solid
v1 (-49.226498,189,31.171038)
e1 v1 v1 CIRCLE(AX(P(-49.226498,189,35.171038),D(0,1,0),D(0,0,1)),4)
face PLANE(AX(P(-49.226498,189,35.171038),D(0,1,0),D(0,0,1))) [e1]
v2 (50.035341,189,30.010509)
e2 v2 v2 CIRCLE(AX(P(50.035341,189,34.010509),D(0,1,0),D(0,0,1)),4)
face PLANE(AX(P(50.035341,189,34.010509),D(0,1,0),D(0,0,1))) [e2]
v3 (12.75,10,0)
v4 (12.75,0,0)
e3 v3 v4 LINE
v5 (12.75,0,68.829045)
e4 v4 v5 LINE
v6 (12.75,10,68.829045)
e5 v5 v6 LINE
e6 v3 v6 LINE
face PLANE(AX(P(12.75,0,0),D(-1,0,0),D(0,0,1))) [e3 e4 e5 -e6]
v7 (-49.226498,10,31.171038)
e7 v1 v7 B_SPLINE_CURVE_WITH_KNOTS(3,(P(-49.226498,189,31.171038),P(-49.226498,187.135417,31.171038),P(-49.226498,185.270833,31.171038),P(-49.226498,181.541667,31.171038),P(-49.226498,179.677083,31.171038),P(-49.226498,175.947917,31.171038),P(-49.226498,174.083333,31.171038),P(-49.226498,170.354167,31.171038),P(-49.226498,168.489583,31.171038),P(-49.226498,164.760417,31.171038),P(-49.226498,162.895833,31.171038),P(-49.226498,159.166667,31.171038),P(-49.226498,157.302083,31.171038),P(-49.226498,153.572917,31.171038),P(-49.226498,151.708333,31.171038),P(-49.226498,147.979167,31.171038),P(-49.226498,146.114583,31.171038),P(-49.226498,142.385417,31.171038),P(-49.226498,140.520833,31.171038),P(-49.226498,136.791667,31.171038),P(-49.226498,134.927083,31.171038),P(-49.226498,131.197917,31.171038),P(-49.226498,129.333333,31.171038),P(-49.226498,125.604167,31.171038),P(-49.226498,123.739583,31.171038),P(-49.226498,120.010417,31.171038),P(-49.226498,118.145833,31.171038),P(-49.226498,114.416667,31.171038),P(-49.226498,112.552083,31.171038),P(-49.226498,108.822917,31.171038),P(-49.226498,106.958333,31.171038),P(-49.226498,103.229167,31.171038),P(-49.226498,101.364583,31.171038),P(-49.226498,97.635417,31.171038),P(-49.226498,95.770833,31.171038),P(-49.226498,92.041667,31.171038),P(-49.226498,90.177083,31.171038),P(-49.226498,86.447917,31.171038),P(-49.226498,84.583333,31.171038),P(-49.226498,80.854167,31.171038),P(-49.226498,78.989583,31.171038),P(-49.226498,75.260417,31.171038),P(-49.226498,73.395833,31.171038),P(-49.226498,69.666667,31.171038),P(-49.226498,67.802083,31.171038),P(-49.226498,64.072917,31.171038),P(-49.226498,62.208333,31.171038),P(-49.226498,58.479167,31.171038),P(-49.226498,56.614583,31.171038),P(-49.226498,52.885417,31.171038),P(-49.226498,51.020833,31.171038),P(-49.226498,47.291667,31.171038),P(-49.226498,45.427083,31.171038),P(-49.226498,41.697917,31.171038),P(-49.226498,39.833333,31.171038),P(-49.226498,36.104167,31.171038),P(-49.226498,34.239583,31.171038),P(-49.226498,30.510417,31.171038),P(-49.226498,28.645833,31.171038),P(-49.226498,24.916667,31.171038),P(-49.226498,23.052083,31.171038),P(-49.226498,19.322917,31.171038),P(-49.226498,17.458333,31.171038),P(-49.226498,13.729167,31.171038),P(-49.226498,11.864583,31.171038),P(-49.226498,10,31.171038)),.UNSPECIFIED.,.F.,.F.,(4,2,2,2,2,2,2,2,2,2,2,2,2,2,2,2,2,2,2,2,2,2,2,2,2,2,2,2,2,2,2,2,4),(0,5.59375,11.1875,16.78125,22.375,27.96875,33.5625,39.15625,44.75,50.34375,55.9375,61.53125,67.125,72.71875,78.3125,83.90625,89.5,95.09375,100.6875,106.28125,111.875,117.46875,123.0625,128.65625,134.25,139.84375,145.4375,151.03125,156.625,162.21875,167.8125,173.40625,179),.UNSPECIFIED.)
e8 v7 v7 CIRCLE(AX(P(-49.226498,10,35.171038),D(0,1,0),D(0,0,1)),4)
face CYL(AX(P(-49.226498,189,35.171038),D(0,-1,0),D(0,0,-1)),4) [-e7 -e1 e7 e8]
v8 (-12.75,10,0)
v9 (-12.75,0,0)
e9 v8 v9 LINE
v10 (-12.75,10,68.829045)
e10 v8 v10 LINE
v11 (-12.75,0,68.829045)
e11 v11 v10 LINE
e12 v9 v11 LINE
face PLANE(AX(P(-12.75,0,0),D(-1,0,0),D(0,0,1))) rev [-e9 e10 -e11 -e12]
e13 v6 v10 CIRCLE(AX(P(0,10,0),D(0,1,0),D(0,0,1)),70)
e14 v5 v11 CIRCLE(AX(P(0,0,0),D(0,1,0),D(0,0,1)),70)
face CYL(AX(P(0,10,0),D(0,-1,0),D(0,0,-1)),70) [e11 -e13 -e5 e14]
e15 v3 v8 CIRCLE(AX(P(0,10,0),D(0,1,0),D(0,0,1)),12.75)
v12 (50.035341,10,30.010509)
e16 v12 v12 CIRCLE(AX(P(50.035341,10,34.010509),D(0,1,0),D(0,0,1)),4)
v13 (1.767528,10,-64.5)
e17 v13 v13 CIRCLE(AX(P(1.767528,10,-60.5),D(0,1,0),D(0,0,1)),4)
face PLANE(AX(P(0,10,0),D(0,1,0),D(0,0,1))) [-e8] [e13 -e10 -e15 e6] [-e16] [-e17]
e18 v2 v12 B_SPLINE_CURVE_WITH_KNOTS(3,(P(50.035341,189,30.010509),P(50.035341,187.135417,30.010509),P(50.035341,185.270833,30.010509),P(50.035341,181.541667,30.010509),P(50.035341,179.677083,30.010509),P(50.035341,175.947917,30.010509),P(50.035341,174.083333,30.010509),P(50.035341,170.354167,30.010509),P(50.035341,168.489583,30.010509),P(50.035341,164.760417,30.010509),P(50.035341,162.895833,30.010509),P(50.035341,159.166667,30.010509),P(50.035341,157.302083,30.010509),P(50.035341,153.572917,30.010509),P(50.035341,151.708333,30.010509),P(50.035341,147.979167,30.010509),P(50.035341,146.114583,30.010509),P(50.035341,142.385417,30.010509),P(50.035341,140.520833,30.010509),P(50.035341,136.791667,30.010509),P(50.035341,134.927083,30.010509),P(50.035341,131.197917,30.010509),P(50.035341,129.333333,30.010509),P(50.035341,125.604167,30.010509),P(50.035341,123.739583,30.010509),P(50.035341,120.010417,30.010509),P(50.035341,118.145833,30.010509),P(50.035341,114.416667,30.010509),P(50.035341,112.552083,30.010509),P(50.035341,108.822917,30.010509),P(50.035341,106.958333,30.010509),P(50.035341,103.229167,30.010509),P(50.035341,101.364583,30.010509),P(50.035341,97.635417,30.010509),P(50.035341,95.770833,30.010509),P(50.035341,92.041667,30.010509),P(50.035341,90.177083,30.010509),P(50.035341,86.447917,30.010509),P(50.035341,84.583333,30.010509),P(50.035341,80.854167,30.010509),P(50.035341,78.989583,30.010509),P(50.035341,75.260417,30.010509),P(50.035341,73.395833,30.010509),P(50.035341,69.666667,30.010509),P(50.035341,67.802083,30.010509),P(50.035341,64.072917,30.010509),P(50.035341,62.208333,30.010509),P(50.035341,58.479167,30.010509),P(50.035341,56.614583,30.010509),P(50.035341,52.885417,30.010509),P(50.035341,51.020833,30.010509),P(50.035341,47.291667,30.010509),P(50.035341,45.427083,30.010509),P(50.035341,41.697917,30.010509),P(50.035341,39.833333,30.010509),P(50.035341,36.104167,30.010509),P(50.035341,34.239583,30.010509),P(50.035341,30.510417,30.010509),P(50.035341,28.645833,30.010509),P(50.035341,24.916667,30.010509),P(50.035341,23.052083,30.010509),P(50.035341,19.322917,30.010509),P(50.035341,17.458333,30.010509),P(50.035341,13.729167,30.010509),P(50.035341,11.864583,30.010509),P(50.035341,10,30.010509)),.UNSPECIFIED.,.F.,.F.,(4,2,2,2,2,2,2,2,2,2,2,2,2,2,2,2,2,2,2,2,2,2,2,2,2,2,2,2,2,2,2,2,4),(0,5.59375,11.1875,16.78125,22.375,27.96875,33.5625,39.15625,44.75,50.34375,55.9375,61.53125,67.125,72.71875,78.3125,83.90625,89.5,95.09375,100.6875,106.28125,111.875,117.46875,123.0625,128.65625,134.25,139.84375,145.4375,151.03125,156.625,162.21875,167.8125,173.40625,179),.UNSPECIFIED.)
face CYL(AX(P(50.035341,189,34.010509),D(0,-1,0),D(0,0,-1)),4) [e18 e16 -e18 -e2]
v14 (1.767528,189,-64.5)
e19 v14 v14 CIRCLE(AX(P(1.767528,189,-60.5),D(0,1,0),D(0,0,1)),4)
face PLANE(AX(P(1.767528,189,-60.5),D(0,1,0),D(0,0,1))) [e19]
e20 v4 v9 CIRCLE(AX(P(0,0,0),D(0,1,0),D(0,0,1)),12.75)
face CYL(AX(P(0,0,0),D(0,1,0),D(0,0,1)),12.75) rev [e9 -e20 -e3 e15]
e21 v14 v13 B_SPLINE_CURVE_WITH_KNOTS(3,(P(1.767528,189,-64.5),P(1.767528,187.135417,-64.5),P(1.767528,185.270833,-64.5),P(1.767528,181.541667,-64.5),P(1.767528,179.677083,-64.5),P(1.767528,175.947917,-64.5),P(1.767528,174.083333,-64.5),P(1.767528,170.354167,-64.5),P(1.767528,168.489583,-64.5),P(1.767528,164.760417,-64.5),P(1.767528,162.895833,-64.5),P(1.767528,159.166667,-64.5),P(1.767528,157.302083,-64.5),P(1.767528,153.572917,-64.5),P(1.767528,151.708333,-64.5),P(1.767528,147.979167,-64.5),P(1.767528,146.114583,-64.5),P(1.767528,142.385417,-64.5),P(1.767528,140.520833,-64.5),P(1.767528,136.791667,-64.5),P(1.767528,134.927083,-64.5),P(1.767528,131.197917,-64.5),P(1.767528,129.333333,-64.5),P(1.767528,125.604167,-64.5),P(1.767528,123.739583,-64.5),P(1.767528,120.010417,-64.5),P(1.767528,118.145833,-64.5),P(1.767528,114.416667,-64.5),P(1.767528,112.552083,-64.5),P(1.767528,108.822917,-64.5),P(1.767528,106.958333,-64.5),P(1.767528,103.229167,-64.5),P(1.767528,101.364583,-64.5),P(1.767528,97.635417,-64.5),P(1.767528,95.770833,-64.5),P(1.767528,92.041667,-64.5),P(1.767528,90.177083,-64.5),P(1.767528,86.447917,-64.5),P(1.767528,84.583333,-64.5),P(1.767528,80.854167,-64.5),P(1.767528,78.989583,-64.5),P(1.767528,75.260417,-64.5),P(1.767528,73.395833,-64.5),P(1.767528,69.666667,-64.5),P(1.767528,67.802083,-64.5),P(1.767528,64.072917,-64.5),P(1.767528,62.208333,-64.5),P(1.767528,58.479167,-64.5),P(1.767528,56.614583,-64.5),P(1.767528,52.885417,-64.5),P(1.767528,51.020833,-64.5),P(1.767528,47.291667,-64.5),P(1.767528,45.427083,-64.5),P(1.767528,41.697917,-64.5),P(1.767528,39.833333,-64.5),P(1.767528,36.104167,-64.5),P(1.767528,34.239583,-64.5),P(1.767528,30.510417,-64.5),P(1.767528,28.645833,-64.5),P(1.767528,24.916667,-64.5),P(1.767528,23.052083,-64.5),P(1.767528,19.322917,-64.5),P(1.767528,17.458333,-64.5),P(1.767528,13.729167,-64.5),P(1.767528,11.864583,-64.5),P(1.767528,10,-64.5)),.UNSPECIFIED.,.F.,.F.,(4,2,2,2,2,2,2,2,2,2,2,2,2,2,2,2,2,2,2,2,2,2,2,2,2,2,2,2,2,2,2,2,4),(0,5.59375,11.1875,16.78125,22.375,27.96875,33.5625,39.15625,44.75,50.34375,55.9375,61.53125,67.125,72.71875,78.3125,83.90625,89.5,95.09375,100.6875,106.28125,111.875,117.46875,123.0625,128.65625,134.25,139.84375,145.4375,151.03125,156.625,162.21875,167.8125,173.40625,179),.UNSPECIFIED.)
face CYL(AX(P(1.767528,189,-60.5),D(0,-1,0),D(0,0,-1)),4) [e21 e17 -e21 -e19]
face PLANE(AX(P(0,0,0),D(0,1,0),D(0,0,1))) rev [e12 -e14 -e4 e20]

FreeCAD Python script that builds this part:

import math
import FreeCAD as App
import Part
import Sketcher

V = App.Vector

doc = App.newDocument("Part")
body = doc.addObject("PartDesign::Body", "Body")

# Sketch on XZ plane
sketch1 = doc.addObject("Sketcher::SketchObject", "Sketch")
body.addObject(sketch1)
sketch1.AttachmentSupport = (doc.XZ_Plane, [""])
sketch1.MapMode = "FlatFace"
sketch1.addGeometry(Part.Circle(V(0, 0, 0), V(0, 0, 1), 70), False)
sketch1.addConstraint([
    Sketcher.Constraint("Coincident", 0, 3, -1, 1),
    Sketcher.Constraint("Diameter", 0, 140.0),
])
pad1 = doc.addObject("PartDesign::Pad", "Pad")
body.addObject(pad1)
pad1.Profile = sketch1
pad1.Length = 10
pad1.Reversed = True

# Sketch on XZ plane
sketch2 = doc.addObject("Sketcher::SketchObject", "Sketch001")
body.addObject(sketch2)
sketch2.AttachmentSupport = (doc.XZ_Plane, [""])
sketch2.MapMode = "FlatFace"
sketch2.AttachmentOffset = App.Placement(V(0, 0, -10), App.Rotation())
sketch2.addGeometry([
    Part.Circle(V(-49.226498, 35.171038, 0), V(0, 0, 1), 4),
    Part.Circle(V(1.767528, -60.5, 0), V(0, 0, 1), 4),
    Part.Circle(V(50.035341, 34.010509, 0), V(0, 0, 1), 4),
], False)
sketch2.addConstraint([
    Sketcher.Constraint("Equal", 0, 1),
    Sketcher.Constraint("Equal", 1, 2),
    Sketcher.Constraint("Diameter", 0, 8.0),
    Sketcher.Constraint("DistanceY", 1, 3, -1, 1, 60.5),
    Sketcher.Constraint("DistanceX", 0, 3, -1, 1, 49.226498),
    Sketcher.Constraint("DistanceX", -1, 1, 1, 3, 1.767528),
    Sketcher.Constraint("DistanceX", -1, 1, 2, 3, 50.035341),
    Sketcher.Constraint("DistanceY", -1, 1, 2, 3, 34.010509),
    Sketcher.Constraint("DistanceY", 2, 3, 0, 3, 1.160529),
])
pad2 = doc.addObject("PartDesign::Pad", "Pad001")
body.addObject(pad2)
pad2.Profile = sketch2
pad2.Length = 179
pad2.Reversed = True

# Sketch on XZ plane
sketch3 = doc.addObject("Sketcher::SketchObject", "Sketch002")
body.addObject(sketch3)
sketch3.AttachmentSupport = (doc.XZ_Plane, [""])
sketch3.MapMode = "FlatFace"
sketch3.AttachmentOffset = App.Placement(V(0, 0, -10), App.Rotation())
sketch3.addGeometry([
    Part.ArcOfCircle(Part.Circle(V(0, 0, 0), V(0, 0, 1), 12.75), math.radians(-180), math.radians(0)),
    Part.LineSegment(V(-12.75, 0, 0), V(-12.75, 74.344779, 0)),
    Part.LineSegment(V(-12.75, 74.344779, 0), V(12.75, 74.344779, 0)),
    Part.LineSegment(V(12.75, 74.344779, 0), V(12.75, 0, 0)),
], False)
sketch3.addConstraint([
    Sketcher.Constraint("Tangent", 0, 1, 1, 1),
    Sketcher.Constraint("Coincident", 1, 2, 2, 1),
    Sketcher.Constraint("Coincident", 2, 2, 3, 1),
    Sketcher.Constraint("Tangent", 3, 2, 0, 2),
    Sketcher.Constraint("Vertical", 1),
    Sketcher.Constraint("Horizontal", 2),
    Sketcher.Constraint("Vertical", 3),
    Sketcher.Constraint("Coincident", 0, 3, -1, 1),
    Sketcher.Constraint("Radius", 0, 12.75),
    Sketcher.Constraint("DistanceY", 1, 1, 1, 2, 74.344779),
])
pocket1 = doc.addObject("PartDesign::Pocket", "Pocket")
body.addObject(pocket1)
pocket1.Profile = sketch3
pocket1.Length = 10
pocket1.Reversed = True

doc.recompute()
